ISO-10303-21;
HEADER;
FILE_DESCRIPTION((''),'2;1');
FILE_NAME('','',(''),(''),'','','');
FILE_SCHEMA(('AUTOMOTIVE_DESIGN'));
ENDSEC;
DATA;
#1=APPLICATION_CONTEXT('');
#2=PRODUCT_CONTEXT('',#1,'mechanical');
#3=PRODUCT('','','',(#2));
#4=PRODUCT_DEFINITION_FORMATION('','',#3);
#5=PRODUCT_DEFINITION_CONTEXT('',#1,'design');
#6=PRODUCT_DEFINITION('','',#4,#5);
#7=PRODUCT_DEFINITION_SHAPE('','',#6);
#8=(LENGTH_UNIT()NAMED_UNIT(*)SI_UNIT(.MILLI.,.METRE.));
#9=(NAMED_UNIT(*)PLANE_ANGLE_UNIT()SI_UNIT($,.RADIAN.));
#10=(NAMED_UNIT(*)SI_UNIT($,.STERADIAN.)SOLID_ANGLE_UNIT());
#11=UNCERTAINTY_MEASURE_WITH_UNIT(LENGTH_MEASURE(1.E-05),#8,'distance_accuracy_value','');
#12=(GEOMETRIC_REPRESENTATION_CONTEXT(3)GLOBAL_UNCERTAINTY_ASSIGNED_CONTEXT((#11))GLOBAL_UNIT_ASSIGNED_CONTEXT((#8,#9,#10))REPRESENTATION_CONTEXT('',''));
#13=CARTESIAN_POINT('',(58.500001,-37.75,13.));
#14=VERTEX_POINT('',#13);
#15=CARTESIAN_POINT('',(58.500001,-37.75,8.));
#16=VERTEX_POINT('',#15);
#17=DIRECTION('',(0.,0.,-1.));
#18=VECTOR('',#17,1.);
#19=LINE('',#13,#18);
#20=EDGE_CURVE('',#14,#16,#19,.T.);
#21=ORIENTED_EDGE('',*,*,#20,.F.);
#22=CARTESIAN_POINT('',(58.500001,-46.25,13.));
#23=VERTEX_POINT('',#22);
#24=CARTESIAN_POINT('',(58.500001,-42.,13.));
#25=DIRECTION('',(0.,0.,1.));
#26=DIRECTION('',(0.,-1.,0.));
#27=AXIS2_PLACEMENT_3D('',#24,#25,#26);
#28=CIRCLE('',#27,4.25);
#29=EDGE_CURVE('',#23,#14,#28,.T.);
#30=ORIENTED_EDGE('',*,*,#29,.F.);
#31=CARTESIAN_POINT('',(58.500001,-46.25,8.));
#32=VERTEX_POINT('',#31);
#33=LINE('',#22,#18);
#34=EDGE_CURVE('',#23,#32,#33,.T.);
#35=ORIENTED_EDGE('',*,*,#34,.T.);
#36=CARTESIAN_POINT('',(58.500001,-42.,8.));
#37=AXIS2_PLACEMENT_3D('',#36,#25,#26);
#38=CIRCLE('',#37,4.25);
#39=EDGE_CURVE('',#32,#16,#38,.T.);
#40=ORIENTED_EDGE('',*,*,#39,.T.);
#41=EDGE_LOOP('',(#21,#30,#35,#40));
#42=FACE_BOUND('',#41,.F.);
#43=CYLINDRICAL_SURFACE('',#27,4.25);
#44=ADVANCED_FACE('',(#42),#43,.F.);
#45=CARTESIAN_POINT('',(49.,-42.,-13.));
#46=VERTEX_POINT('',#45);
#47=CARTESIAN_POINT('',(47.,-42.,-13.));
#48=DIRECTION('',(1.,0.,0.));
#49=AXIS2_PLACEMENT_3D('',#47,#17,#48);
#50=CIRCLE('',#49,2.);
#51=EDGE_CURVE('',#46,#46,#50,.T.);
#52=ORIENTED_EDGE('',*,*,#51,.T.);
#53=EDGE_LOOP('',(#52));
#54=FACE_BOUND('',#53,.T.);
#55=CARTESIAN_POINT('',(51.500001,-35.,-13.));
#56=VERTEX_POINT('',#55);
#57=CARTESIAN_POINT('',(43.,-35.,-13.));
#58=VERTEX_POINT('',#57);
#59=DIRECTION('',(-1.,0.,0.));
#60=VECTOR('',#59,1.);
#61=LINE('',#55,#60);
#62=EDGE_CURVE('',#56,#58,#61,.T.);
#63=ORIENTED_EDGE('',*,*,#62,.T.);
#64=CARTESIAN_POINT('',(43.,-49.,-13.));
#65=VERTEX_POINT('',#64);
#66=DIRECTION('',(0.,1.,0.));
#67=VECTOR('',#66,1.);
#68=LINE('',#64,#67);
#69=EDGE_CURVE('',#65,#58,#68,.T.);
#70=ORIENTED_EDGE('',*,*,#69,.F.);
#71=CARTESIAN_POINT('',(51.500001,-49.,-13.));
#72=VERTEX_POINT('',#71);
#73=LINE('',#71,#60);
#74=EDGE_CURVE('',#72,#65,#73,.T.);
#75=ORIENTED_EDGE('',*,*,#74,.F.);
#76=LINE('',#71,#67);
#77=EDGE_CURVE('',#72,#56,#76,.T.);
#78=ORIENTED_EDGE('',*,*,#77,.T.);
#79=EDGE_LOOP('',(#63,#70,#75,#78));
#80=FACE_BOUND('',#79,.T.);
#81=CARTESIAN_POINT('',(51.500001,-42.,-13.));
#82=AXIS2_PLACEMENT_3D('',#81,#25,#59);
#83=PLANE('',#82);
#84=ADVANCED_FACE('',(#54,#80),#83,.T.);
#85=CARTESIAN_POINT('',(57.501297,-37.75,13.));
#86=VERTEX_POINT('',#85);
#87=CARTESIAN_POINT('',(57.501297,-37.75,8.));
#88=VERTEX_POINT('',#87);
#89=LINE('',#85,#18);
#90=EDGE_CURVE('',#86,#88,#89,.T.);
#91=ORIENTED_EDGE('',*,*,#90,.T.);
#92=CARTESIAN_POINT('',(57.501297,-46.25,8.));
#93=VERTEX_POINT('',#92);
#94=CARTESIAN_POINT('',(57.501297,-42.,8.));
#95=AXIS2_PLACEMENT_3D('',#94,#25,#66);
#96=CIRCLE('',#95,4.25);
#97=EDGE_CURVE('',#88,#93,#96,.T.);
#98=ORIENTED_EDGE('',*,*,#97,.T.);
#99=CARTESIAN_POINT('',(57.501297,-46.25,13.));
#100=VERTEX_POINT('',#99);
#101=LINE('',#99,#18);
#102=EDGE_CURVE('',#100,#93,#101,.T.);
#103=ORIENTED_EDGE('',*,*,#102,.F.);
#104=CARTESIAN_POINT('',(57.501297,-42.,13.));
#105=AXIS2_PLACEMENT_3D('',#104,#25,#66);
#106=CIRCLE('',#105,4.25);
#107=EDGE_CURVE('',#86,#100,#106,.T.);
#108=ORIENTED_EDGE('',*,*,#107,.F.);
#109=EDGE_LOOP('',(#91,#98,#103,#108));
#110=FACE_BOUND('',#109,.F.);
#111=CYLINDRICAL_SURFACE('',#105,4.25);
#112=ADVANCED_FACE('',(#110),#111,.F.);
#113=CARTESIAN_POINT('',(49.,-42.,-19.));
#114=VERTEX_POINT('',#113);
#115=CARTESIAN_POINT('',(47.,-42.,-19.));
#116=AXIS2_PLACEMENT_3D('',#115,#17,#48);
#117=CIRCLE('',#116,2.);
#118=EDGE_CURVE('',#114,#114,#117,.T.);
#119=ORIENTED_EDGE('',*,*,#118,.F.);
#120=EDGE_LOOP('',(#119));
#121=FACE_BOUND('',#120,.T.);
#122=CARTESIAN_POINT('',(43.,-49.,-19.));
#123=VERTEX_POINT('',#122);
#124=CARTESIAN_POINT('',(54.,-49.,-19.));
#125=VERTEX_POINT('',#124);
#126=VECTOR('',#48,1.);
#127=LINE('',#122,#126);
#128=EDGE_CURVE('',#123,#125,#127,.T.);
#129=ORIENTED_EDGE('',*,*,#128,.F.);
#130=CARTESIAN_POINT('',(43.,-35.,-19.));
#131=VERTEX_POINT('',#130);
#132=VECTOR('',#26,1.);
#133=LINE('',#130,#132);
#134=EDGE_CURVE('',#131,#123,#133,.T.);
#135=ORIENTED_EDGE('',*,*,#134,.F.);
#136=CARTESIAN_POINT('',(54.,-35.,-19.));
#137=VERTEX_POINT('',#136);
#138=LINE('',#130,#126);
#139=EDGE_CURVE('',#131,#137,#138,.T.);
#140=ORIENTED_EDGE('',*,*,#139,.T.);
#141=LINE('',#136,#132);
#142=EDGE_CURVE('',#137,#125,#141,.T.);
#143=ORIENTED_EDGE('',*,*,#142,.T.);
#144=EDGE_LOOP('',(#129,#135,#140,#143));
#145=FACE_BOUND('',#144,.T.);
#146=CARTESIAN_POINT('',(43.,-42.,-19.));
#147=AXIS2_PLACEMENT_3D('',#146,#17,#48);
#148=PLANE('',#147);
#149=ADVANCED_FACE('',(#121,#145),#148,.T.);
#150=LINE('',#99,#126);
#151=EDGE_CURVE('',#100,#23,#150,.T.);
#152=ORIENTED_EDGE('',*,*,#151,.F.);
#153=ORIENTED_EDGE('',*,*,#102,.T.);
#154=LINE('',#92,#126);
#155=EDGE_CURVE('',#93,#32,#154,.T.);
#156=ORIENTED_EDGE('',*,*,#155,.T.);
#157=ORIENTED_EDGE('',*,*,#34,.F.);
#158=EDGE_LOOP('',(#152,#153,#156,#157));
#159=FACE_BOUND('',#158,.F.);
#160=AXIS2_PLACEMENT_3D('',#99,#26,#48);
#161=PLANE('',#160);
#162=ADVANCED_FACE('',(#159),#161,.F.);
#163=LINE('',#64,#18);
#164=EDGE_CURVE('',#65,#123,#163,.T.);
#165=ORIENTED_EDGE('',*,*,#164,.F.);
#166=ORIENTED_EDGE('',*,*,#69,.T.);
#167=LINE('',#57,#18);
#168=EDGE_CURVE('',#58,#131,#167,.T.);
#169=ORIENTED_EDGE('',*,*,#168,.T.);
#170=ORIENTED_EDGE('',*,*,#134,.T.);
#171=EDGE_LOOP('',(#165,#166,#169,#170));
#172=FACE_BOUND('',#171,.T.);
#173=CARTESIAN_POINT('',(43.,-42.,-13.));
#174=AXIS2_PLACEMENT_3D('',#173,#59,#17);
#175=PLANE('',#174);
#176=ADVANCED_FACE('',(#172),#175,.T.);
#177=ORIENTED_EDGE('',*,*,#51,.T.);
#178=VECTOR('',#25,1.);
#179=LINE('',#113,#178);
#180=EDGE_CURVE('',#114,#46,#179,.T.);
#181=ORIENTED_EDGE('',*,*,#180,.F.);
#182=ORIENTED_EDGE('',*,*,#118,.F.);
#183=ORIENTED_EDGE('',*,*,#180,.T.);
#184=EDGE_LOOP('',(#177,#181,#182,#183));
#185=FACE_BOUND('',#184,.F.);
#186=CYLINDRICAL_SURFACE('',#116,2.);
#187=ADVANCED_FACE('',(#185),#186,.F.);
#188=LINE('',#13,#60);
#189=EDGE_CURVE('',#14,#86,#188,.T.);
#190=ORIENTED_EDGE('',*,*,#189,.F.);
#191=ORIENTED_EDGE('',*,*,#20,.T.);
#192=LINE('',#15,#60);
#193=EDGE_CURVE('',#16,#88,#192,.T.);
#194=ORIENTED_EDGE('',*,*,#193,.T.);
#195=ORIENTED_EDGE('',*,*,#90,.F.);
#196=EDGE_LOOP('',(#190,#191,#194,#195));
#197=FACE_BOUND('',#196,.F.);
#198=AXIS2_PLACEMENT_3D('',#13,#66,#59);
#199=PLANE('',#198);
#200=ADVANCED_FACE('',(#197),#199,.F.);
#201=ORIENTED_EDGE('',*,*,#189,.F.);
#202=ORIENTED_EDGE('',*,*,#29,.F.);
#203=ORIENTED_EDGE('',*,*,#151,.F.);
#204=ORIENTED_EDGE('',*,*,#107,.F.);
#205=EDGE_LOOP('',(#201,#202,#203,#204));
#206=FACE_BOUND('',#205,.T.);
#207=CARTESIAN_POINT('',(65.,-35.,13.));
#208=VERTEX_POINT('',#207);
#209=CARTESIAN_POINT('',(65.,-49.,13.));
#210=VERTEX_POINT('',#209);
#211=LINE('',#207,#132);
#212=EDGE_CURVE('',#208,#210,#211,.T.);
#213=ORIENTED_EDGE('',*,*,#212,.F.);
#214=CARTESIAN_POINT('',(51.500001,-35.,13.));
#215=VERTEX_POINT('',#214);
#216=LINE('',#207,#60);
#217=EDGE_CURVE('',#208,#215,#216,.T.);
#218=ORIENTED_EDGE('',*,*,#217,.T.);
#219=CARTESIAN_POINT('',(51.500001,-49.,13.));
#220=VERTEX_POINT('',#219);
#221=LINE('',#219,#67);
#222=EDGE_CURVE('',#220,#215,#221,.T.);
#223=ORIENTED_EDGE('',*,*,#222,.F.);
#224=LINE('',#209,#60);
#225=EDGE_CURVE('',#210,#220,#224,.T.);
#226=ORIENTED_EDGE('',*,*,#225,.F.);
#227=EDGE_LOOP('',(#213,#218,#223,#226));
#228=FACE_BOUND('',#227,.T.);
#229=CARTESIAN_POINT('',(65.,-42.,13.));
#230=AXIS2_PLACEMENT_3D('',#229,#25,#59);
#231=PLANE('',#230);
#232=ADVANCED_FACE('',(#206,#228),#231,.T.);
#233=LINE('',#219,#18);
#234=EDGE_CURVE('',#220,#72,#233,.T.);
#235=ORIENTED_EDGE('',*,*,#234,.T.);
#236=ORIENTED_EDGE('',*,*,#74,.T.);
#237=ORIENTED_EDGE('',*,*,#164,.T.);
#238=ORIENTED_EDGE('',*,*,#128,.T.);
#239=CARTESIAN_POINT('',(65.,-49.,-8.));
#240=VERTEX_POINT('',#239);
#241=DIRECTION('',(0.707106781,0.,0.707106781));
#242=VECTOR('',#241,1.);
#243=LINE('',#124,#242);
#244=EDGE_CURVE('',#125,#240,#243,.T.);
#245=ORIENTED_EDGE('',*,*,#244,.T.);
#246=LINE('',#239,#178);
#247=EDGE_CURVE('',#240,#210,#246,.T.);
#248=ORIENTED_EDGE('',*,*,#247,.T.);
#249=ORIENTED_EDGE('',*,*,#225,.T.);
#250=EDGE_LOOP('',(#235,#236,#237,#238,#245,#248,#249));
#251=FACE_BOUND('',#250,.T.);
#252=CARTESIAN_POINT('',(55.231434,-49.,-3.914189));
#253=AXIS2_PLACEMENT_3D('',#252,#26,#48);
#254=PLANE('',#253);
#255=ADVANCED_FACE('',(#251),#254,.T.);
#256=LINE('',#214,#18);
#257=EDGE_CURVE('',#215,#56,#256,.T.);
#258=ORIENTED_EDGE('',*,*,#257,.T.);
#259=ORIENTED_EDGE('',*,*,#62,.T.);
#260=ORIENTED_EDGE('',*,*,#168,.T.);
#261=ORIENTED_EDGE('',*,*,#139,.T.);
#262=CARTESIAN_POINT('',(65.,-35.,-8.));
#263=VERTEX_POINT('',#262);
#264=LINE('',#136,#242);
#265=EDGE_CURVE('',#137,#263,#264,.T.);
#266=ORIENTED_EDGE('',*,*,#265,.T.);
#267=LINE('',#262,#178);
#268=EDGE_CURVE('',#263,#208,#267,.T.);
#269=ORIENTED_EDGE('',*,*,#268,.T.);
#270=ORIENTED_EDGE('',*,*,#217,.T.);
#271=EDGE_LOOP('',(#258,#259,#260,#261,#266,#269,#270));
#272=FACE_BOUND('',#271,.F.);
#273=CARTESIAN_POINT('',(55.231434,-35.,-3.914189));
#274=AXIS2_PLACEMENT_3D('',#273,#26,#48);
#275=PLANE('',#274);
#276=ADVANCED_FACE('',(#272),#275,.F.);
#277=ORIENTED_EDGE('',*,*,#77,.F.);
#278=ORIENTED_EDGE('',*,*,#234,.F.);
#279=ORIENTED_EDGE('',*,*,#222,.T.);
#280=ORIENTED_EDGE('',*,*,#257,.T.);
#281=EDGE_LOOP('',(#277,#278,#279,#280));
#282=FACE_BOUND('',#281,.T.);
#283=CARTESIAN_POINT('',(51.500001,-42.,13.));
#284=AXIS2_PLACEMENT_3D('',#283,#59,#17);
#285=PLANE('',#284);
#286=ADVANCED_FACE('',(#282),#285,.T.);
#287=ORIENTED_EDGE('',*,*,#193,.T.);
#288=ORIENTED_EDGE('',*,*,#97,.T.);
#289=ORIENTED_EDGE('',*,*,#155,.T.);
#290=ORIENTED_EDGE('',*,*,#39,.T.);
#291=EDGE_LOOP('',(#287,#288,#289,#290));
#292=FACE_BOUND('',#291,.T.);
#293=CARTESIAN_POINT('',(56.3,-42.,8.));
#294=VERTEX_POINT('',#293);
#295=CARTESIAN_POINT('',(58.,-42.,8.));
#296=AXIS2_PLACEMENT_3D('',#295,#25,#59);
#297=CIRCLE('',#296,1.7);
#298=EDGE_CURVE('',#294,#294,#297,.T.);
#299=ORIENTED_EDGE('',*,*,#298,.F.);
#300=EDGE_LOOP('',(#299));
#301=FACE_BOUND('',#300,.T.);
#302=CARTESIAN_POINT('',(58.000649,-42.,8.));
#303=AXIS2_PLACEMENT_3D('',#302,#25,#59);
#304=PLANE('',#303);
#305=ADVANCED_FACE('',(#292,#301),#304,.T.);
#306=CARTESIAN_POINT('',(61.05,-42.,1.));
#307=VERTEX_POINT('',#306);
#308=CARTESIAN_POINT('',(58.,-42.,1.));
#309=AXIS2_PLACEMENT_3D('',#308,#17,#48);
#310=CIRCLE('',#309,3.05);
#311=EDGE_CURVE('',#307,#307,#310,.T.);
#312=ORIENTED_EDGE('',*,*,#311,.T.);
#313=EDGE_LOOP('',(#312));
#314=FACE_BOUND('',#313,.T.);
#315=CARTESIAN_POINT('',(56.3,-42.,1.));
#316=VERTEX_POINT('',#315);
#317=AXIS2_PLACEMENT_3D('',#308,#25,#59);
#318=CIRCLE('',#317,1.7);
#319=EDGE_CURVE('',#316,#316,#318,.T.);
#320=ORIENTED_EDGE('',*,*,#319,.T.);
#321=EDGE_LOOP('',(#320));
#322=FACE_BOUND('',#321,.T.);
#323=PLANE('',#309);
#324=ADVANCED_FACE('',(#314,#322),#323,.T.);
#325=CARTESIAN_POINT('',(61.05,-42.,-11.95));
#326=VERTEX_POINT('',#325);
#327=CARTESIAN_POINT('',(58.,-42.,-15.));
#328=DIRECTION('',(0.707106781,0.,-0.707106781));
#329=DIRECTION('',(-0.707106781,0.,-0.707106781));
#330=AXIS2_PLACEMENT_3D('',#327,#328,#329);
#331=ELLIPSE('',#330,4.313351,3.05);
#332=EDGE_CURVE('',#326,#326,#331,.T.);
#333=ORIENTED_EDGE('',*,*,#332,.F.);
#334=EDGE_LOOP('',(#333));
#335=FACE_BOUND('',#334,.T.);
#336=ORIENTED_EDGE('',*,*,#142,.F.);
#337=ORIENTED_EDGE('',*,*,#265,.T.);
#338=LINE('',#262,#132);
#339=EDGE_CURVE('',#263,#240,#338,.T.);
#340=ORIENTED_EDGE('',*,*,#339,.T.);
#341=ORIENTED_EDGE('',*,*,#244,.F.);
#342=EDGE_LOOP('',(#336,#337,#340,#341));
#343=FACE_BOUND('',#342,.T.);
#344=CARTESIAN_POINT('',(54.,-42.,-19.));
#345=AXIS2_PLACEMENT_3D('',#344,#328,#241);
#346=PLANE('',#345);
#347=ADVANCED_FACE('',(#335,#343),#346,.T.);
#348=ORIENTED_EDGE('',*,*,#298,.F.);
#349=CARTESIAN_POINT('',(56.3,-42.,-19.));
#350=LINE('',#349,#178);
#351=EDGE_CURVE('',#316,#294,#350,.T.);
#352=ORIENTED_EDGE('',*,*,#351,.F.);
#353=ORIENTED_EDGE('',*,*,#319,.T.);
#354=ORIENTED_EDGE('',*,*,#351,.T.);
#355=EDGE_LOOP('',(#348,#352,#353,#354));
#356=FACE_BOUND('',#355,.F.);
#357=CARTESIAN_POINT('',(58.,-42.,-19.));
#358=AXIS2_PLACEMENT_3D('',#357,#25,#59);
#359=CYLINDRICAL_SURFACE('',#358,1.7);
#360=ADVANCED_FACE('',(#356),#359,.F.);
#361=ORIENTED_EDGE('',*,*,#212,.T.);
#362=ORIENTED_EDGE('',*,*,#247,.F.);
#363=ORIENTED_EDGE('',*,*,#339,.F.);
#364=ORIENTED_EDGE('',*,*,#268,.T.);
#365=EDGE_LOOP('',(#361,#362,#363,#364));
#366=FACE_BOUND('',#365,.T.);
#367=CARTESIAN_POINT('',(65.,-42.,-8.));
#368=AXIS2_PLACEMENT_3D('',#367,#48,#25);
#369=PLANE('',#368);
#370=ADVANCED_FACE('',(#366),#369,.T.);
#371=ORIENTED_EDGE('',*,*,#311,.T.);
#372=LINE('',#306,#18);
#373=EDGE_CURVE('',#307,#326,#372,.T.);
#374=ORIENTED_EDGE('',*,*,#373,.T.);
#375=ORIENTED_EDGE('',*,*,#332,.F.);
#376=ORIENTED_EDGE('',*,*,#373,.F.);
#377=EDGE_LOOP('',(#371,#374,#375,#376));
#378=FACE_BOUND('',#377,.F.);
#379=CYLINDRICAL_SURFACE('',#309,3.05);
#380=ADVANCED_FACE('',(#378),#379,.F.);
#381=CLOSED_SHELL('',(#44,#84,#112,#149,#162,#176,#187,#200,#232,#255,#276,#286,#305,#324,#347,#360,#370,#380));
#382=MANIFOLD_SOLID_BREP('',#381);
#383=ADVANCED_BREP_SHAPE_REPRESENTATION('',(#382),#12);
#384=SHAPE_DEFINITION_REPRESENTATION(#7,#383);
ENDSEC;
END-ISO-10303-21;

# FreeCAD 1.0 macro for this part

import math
import FreeCAD as App
import Part
import Sketcher
Q = App.Units.Quantity


def add_polygon(sketch, points):
    """Adds a closed chain of lines whose ends are joined by coincident constraints."""
    first, n = sketch.GeometryCount, len(points)
    for a, b in zip(points, points[1:] + points[:1]):
        sketch.addGeometry(Part.LineSegment(App.Vector(*a, 0), App.Vector(*b, 0)), False)
    for i in range(n):
        sketch.addConstraint(Sketcher.Constraint("Coincident", first + i, 2, first + (i + 1) % n, 1))

doc = App.newDocument("Part")
body = doc.addObject("PartDesign::Body", "Body")

sketch1 = body.newObject("Sketcher::SketchObject", "Sketch")
sketch1.AttachmentSupport = (doc.getObject("XZ_Plane"), [""])
sketch1.MapMode = "FlatFace"
sketch1.AttachmentOffset = App.Placement(App.Vector(0, 0, 2), App.Rotation())
add_polygon(sketch1, [(43, -13), (43, -19), (54, -19), (65, -8), (65, 13), (52, 13), (52, -13)])
sketch1.addConstraint([
    Sketcher.Constraint("Vertical", 0),
    Sketcher.Constraint("Horizontal", 1),
    Sketcher.Constraint("Vertical", 3),
    Sketcher.Constraint("Horizontal", 4),
    Sketcher.Constraint("Vertical", 5),
    Sketcher.Constraint("Horizontal", 6),
    Sketcher.Constraint("DistanceX", 1, 1, 1, 2, 11.0),
    Sketcher.Constraint("DistanceY", 0, 2, 0, 1, 6.0),
    Sketcher.Constraint("DistanceY", 3, 1, 3, 2, 21.0),
    Sketcher.Constraint("DistanceY", 5, 2, 5, 1, 26.0),
    Sketcher.Constraint("Angle", 2, Q("45 deg")),
    Sketcher.Constraint("DistanceX", 4, 2, 4, 1, 13.499999),
    Sketcher.Constraint("DistanceX", -1, 1, 0, 2, 43.0),
    Sketcher.Constraint("DistanceY", 0, 2, -1, 1, 19.0),
])
pad1 = body.newObject("PartDesign::Pad", "Pad")
pad1.Profile = sketch1
pad1.Length = 14
pad1.Midplane = True

sketch2 = body.newObject("Sketcher::SketchObject", "Sketch001")
sketch2.AttachmentSupport = (doc.getObject("XY_Plane"), [""])
sketch2.MapMode = "FlatFace"
sketch2.AttachmentOffset = App.Placement(App.Vector(0, 0, 13), App.Rotation())
sketch2.addGeometry([
    Part.ArcOfCircle(Part.Circle(App.Vector(57.5, -2, 0), App.Vector(0, 0, 1), 4.2), math.radians(90), math.radians(270)),
    Part.LineSegment(App.Vector(57.5, -6.2, 0), App.Vector(58.5, -6.2, 0)),
    Part.ArcOfCircle(Part.Circle(App.Vector(58.5, -2, 0), App.Vector(0, 0, 1), 4.2), math.radians(-90), math.radians(90)),
    Part.LineSegment(App.Vector(58.5, 2.2, 0), App.Vector(57.5, 2.2, 0)),
], False)
sketch2.addConstraint([
    Sketcher.Constraint("Tangent", 0, 2, 1, 1),
    Sketcher.Constraint("Tangent", 1, 2, 2, 1),
    Sketcher.Constraint("Tangent", 2, 2, 3, 1),
    Sketcher.Constraint("Tangent", 3, 2, 0, 1),
    Sketcher.Constraint("Horizontal", 1),
    Sketcher.Constraint("Horizontal", 3),
    Sketcher.Constraint("Radius", 0, 4.25),
    Sketcher.Constraint("DistanceY", 0, 3, -1, 1, 2.0),
    Sketcher.Constraint("DistanceX", -1, 1, 2, 3, 58.500001),
    Sketcher.Constraint("DistanceX", 1, 1, 1, 2, 0.998704),
])
pocket1 = body.newObject("PartDesign::Pocket", "Pocket")
pocket1.Profile = sketch2
pocket1.Length = 5

sketch3 = body.newObject("Sketcher::SketchObject", "Sketch002")
sketch3.AttachmentSupport = (doc.getObject("XY_Plane"), [""])
sketch3.MapMode = "FlatFace"
sketch3.AttachmentOffset = App.Placement(App.Vector(0, 0, -19), App.Rotation())
sketch3.addGeometry(Part.Circle(App.Vector(58, -2, 0), App.Vector(0, 0, 1), 1.7), False)
sketch3.addConstraint([
    Sketcher.Constraint("Diameter", 0, 3.4),
    Sketcher.Constraint("DistanceX", -1, 1, 0, 3, 58.0),
    Sketcher.Constraint("DistanceY", 0, 3, -1, 1, 2.0),
])
doc.recompute()
hole = body.newObject("PartDesign::Hole", "Hole")
hole.Profile = sketch3
hole.ThreadType = "None"
hole.Diameter = 3.4
hole.DepthType = "ThroughAll"
hole.HoleCutType = "Counterbore"
hole.HoleCutDiameter = 6.1
hole.HoleCutDepth = 20
hole.Reversed = True

sketch4 = body.newObject("Sketcher::SketchObject", "Sketch003")
sketch4.AttachmentSupport = (doc.getObject("XY_Plane"), [""])
sketch4.MapMode = "FlatFace"
sketch4.AttachmentOffset = App.Placement(App.Vector(0, 0, -19), App.Rotation())
sketch4.addGeometry(Part.Circle(App.Vector(47, -2, 0), App.Vector(0, 0, 1), 2), False)
sketch4.addConstraint([
    Sketcher.Constraint("Diameter", 0, 4.0),
    Sketcher.Constraint("DistanceX", -1, 1, 0, 3, 47.0),
    Sketcher.Constraint("DistanceY", 0, 3, -1, 1, 2.0),
])
pocket2 = body.newObject("PartDesign::Pocket", "Pocket001")
pocket2.Profile = sketch4
pocket2.Length = 6
pocket2.Reversed = True
body2 = doc.addObject("PartDesign::Body", "Body001")
doc.recompute()

body.Placement = App.Placement(App.Vector(0, -40, 0), App.Rotation(App.Vector(0, 0, 1), 0))
boolean = body2.newObject("PartDesign::Boolean", "Boolean")
boolean.Type = "Fuse"
boolean.addObjects([body])

doc.recompute()
